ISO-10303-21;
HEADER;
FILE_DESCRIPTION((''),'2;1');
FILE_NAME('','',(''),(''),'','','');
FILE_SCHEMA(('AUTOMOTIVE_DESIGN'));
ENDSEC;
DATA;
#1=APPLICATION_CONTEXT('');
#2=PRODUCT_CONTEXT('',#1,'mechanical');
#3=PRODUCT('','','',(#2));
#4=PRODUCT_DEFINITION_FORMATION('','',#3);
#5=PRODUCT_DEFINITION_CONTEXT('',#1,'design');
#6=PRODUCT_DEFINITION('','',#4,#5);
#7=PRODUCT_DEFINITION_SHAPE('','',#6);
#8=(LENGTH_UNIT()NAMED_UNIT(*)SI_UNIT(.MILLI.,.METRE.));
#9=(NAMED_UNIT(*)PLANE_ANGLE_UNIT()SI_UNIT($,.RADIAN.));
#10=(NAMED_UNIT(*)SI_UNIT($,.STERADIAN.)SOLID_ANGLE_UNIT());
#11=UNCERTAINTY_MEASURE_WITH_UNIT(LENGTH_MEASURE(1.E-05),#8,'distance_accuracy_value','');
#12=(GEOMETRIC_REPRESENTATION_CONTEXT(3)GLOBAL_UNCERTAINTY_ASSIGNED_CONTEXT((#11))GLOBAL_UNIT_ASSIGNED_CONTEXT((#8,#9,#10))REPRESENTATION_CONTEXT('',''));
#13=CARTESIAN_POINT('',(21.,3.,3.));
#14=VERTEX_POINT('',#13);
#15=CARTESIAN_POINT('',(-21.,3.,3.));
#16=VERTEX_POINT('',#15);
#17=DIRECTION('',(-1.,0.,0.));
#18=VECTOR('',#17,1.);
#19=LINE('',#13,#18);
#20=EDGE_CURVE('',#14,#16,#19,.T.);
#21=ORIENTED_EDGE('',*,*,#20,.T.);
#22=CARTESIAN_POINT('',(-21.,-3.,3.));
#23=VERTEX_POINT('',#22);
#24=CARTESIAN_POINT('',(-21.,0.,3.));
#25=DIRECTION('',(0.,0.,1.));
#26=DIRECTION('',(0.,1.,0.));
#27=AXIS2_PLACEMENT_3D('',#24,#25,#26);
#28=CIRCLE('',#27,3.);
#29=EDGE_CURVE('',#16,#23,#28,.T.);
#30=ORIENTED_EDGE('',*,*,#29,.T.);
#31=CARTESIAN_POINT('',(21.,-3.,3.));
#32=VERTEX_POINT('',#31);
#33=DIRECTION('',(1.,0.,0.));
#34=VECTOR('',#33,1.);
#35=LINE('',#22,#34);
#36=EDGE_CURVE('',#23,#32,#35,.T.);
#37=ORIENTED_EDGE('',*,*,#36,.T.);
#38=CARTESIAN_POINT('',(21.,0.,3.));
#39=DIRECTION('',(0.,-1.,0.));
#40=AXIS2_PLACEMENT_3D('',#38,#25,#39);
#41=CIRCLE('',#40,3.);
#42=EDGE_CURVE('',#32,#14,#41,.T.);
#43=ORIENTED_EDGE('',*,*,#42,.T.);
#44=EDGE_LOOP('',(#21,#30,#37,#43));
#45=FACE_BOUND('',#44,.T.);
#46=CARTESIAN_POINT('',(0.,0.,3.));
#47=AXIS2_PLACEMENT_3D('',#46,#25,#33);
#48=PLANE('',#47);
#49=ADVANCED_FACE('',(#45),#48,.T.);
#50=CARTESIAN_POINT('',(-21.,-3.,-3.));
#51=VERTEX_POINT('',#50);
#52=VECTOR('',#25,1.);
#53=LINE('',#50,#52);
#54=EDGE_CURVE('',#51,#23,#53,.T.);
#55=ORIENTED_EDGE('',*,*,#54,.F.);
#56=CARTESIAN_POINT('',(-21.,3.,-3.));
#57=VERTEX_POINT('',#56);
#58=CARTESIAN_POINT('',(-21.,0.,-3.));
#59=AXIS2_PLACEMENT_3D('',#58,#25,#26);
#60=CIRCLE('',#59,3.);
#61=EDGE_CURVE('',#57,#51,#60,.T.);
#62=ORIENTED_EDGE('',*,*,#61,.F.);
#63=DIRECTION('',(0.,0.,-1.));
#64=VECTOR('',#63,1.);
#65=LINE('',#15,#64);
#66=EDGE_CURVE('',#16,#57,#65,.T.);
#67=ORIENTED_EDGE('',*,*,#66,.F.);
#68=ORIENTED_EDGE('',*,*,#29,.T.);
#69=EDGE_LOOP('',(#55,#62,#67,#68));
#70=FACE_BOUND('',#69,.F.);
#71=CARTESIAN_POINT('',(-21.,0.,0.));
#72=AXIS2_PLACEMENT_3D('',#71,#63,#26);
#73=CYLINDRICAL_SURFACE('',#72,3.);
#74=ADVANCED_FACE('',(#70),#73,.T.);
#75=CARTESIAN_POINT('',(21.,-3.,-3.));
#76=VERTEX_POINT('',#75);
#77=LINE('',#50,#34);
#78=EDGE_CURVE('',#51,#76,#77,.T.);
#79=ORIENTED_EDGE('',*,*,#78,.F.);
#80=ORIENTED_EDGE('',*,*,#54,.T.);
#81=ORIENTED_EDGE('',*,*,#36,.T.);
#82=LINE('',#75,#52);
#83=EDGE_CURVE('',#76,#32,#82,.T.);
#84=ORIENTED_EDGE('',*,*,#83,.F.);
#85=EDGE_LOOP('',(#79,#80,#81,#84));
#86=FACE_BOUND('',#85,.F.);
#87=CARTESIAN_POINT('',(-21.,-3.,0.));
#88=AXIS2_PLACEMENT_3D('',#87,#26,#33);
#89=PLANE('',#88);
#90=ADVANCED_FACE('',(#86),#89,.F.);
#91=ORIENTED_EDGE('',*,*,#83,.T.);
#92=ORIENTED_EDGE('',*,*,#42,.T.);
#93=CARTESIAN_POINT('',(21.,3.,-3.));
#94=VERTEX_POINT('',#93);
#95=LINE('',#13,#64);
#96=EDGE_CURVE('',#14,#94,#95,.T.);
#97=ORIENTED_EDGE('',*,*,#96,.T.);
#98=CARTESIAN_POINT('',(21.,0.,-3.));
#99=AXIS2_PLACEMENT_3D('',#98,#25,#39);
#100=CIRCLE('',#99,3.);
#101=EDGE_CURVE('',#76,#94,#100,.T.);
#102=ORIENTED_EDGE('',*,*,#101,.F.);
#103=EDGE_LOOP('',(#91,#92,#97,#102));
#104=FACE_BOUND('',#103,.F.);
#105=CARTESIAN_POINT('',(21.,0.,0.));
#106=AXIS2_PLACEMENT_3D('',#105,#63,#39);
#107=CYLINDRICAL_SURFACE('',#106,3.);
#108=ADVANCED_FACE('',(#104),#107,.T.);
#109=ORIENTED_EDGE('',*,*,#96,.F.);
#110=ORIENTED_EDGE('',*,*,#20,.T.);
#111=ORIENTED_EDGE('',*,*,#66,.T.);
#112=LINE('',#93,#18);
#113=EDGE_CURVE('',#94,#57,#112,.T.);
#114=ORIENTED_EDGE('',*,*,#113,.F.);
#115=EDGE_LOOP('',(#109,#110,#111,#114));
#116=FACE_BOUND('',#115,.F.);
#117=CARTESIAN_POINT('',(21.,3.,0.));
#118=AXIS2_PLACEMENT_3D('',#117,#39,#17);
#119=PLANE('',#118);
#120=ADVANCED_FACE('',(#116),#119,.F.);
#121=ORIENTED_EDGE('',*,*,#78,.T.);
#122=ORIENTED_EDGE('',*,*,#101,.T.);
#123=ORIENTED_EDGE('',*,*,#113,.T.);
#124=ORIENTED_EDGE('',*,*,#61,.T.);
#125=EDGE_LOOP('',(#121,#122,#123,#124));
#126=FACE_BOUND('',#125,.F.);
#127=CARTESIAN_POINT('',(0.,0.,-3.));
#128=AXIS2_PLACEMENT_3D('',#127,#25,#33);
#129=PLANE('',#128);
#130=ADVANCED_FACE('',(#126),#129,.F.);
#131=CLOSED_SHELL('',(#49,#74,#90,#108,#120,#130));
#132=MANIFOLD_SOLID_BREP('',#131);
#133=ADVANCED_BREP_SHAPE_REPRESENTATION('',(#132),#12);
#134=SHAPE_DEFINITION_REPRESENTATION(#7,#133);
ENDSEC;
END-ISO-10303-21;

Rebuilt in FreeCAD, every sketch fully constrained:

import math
import FreeCAD as App
import Part
import Sketcher
Q = App.Units.Quantity

doc = App.newDocument("Part")
body = doc.addObject("PartDesign::Body", "Body")

sketch1 = body.newObject("Sketcher::SketchObject", "Sketch")
sketch1.AttachmentSupport = (doc.getObject("XY_Plane"), [""])
sketch1.MapMode = "FlatFace"
sketch1.addGeometry([
    Part.ArcOfCircle(Part.Circle(App.Vector(-21, 0, 0), App.Vector(0, 0, 1), 3), math.radians(90), math.radians(270)),
    Part.LineSegment(App.Vector(-21, -3, 0), App.Vector(21, -3, 0)),
    Part.ArcOfCircle(Part.Circle(App.Vector(21, 0, 0), App.Vector(0, 0, 1), 3), math.radians(-90), math.radians(90)),
    Part.LineSegment(App.Vector(21, 3, 0), App.Vector(-21, 3, 0)),
], False)
sketch1.addConstraint([
    Sketcher.Constraint("Tangent", 0, 2, 1, 1),
    Sketcher.Constraint("Tangent", 1, 2, 2, 1),
    Sketcher.Constraint("Tangent", 2, 2, 3, 1),
    Sketcher.Constraint("Tangent", 3, 2, 0, 1),
    Sketcher.Constraint("Horizontal", 1),
    Sketcher.Constraint("Horizontal", 3),
    Sketcher.Constraint("Symmetric", 0, 3, 2, 3, -1, 1),
    Sketcher.Constraint("Radius", 0, Q("3 mm")),
    Sketcher.Constraint("DistanceX", 1, 1, 1, 2, Q("42 mm")),
])
pad1 = body.newObject("PartDesign::Pad", "Pad")
pad1.Profile = sketch1
pad1.Length = 6
pad1.Midplane = True

doc.recompute()
